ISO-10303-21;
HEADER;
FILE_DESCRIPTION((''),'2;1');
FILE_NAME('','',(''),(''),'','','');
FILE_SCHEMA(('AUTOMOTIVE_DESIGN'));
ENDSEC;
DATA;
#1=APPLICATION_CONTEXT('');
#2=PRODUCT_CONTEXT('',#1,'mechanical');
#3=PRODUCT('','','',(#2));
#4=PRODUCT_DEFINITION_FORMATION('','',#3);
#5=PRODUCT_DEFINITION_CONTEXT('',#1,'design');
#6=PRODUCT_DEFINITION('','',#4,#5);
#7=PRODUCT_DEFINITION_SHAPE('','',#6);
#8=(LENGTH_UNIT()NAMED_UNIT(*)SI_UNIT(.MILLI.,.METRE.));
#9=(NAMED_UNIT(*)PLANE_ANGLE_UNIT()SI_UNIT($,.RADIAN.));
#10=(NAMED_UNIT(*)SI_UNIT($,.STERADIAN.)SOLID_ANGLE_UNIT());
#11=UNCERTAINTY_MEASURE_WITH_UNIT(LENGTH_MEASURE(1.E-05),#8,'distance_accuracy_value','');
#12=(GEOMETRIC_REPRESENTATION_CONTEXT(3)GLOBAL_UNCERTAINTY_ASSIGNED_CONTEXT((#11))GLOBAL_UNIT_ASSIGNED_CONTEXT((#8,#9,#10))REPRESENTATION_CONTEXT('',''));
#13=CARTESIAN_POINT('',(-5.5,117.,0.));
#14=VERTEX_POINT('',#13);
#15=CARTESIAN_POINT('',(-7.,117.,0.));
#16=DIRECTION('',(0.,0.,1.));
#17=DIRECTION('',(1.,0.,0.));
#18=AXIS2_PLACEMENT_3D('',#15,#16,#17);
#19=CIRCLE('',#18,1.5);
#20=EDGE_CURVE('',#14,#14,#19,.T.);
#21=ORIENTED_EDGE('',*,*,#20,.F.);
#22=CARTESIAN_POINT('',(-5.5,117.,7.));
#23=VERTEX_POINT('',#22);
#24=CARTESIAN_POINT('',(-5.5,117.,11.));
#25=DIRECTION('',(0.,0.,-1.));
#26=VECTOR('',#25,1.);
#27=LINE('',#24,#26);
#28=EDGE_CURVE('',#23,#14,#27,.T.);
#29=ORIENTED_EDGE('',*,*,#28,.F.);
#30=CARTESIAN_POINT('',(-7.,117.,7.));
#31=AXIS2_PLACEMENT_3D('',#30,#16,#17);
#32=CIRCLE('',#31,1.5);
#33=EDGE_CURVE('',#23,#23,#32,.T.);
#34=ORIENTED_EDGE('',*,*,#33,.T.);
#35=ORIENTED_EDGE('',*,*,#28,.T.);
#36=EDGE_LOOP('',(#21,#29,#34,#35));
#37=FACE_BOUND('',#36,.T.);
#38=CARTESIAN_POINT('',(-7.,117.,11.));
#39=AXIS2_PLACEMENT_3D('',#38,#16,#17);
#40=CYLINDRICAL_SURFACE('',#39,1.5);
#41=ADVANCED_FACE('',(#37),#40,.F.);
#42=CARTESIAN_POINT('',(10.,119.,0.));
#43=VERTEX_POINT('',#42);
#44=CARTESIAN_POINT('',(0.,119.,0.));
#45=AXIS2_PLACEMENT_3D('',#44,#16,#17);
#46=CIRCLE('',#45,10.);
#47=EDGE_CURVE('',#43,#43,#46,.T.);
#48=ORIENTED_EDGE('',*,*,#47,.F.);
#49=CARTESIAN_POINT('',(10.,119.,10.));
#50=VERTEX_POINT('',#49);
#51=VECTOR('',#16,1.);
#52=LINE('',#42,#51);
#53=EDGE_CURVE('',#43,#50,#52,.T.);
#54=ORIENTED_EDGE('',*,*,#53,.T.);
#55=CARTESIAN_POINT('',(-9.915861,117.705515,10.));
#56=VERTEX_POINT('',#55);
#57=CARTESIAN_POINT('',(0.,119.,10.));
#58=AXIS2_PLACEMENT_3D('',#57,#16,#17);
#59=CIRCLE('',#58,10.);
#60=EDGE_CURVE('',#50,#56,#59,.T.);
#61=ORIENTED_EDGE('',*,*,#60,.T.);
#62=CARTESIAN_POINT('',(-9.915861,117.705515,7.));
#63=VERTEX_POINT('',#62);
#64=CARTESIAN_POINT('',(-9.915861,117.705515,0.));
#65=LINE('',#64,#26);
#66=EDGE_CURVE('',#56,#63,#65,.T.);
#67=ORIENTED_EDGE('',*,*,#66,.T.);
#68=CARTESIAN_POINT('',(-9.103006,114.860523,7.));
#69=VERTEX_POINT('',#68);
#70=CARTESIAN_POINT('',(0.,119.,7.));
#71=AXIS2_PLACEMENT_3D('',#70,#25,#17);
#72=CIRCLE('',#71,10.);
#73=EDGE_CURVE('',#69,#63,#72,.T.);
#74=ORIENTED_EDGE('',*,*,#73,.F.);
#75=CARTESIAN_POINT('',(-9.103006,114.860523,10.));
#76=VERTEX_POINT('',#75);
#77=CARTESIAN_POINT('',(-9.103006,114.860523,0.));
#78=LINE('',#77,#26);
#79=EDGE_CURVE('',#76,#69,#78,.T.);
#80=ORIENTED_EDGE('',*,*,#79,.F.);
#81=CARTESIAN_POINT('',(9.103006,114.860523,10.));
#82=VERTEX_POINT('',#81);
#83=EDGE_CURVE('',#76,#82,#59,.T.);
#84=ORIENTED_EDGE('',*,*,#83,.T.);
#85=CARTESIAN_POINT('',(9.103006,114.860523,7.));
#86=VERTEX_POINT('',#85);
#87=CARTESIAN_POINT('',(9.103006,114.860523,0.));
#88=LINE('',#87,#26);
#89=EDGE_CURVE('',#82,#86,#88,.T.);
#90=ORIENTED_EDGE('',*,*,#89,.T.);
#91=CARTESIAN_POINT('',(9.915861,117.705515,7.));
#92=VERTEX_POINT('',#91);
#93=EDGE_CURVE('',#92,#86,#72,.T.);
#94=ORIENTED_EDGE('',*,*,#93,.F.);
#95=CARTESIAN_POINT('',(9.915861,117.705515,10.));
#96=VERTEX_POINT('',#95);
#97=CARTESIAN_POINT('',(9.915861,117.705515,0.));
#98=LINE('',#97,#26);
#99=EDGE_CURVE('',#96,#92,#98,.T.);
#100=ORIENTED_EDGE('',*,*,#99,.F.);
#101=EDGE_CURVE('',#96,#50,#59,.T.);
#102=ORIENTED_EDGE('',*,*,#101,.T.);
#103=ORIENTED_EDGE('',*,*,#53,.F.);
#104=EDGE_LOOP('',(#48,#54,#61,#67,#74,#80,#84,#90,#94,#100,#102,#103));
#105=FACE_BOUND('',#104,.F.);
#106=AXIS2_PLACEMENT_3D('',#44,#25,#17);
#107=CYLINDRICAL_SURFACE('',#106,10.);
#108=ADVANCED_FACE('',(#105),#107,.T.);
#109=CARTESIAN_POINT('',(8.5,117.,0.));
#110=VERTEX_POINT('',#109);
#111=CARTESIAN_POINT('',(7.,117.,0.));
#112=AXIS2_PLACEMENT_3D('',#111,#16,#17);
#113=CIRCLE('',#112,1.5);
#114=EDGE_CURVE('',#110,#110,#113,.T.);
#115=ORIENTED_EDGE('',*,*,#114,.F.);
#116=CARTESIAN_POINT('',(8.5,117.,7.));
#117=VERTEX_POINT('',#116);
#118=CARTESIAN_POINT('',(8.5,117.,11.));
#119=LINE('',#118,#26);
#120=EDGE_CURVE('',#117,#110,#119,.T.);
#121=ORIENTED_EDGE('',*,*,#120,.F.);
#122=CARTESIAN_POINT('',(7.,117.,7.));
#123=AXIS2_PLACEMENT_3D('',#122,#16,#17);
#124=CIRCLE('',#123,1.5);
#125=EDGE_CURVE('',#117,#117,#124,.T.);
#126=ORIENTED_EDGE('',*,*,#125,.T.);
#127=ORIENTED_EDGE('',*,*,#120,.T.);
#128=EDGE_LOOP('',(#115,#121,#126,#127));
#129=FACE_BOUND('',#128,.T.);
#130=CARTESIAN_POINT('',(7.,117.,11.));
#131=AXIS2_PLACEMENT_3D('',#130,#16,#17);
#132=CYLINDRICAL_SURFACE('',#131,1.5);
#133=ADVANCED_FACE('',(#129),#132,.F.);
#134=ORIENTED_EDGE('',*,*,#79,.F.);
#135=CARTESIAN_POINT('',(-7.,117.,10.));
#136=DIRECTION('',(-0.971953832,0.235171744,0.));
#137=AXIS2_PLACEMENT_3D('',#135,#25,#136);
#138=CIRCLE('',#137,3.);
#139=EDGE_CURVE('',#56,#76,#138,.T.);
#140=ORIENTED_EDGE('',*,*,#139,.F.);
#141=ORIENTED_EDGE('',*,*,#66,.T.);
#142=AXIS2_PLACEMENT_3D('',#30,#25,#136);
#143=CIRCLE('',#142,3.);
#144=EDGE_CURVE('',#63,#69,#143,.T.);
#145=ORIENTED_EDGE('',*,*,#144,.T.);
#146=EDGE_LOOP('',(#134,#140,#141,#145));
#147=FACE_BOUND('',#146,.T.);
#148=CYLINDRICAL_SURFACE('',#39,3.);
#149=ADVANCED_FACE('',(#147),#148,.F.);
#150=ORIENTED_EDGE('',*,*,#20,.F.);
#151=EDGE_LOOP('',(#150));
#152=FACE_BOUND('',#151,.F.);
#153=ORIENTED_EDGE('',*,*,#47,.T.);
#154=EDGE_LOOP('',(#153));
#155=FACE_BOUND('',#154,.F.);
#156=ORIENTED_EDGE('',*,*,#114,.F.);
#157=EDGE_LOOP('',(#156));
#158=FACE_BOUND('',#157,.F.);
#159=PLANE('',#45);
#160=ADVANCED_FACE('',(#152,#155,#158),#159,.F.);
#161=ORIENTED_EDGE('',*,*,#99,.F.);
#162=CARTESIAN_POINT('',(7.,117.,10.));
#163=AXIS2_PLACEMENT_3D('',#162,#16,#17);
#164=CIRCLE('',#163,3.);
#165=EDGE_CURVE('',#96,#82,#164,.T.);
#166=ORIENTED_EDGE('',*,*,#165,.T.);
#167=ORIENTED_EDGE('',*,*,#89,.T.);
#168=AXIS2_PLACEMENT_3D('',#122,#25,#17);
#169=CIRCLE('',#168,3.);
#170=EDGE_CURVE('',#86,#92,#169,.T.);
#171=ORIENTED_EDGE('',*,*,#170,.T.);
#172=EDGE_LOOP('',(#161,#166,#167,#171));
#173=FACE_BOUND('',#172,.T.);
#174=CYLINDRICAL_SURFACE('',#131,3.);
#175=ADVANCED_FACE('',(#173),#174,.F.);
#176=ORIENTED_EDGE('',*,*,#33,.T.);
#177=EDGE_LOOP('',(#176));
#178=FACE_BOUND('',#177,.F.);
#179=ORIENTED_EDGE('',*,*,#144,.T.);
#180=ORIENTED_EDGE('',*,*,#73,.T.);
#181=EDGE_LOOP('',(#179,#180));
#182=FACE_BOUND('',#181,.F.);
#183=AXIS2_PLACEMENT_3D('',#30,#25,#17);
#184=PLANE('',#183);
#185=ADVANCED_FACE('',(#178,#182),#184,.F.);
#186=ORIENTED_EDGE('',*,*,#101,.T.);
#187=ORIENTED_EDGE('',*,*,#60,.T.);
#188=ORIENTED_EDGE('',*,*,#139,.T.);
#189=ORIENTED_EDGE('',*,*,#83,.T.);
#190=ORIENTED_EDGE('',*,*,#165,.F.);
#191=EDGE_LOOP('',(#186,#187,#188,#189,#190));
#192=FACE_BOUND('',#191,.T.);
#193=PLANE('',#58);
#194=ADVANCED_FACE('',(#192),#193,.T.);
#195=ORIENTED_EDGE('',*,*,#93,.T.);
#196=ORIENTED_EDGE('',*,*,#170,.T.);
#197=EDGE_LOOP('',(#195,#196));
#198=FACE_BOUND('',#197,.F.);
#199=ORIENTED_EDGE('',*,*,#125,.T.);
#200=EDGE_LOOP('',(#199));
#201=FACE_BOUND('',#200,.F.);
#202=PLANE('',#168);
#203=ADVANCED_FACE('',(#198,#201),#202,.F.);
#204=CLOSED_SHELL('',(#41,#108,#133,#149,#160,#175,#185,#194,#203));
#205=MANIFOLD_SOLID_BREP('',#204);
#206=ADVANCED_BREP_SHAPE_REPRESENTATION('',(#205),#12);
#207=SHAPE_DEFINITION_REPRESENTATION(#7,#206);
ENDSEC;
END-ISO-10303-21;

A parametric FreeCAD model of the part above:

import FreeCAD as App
import Part
import Sketcher

V = App.Vector
Q = App.Units.Quantity

doc = App.newDocument("Part")
body = doc.addObject("PartDesign::Body", "Body")

sketch1 = body.newObject("Sketcher::SketchObject", "Sketch")
sketch1.AttachmentSupport = (doc.getObject("XZ_Plane"), [""])
sketch1.MapMode = "FlatFace"
sketch1.AttachmentOffset = App.Placement(V(0, 0, 34), App.Rotation())
sketch1.addGeometry(Part.Circle(V(-7, 37, 0), V(0, 0, 1), 3), False)
sketch1.addConstraint([
    Sketcher.Constraint("Diameter", 0, Q("6 mm")),
    Sketcher.Constraint("DistanceX", 0, 3, -1, 1, Q("7 mm")),
    Sketcher.Constraint("DistanceY", -1, 1, 0, 3, Q("37 mm")),
])
pad1 = body.newObject("PartDesign::Pad", "Pad")
pad1.Profile = sketch1
pad1.Length = 4
body2 = doc.addObject("PartDesign::Body", "Body001")

sketch2 = body2.newObject("Sketcher::SketchObject", "Sketch001")
sketch2.AttachmentSupport = (doc.getObject("XZ_Plane001"), [""])
sketch2.MapMode = "FlatFace"
sketch2.AttachmentOffset = App.Placement(V(0, 0, 34), App.Rotation())
sketch2.addGeometry(Part.Circle(V(7, 73, 0), V(0, 0, 1), 3), False)
sketch2.addConstraint([
    Sketcher.Constraint("Diameter", 0, Q("6 mm")),
    Sketcher.Constraint("DistanceX", -1, 1, 0, 3, Q("7 mm")),
    Sketcher.Constraint("DistanceY", -1, 1, 0, 3, Q("73 mm")),
])
pad2 = body2.newObject("PartDesign::Pad", "Pad001")
pad2.Profile = sketch2
pad2.Length = 4
body3 = doc.addObject("PartDesign::Body", "Body002")

sketch3 = body3.newObject("Sketcher::SketchObject", "Sketch002")
sketch3.AttachmentSupport = (doc.getObject("XZ_Plane002"), [""])
sketch3.MapMode = "FlatFace"
sketch3.AttachmentOffset = App.Placement(V(0, 0, 34), App.Rotation())
sketch3.addGeometry(Part.Circle(V(-7, 73, 0), V(0, 0, 1), 3), False)
sketch3.addConstraint([
    Sketcher.Constraint("Diameter", 0, Q("6 mm")),
    Sketcher.Constraint("DistanceX", 0, 3, -1, 1, Q("7 mm")),
    Sketcher.Constraint("DistanceY", -1, 1, 0, 3, Q("73 mm")),
])
pad3 = body3.newObject("PartDesign::Pad", "Pad002")
pad3.Profile = sketch3
pad3.Length = 4
body4 = doc.addObject("PartDesign::Body", "Body003")
body4.AllowCompound = True

sketch4 = body4.newObject("Sketcher::SketchObject", "Sketch003")
sketch4.AttachmentSupport = (doc.getObject("XZ_Plane003"), [""])
sketch4.MapMode = "FlatFace"
sketch4.AttachmentOffset = App.Placement(V(0, 0, 34), App.Rotation())
sketch4.addGeometry(Part.Circle(V(7, 37, 0), V(0, 0, 1), 3), False)
sketch4.addConstraint([
    Sketcher.Constraint("Diameter", 0, Q("6 mm")),
    Sketcher.Constraint("DistanceX", -1, 1, 0, 3, Q("7 mm")),
    Sketcher.Constraint("DistanceY", -1, 1, 0, 3, Q("37 mm")),
])
pad4 = body4.newObject("PartDesign::Pad", "Pad003")
pad4.Profile = sketch4
pad4.Length = 4
doc.recompute()

boolean = body4.newObject("PartDesign::Boolean", "Boolean")
boolean.Type = "Fuse"
boolean.addObjects([body])
doc.recompute()

boolean2 = body4.newObject("PartDesign::Boolean", "Boolean001")
boolean2.Type = "Fuse"
boolean2.addObjects([body2])
doc.recompute()

boolean3 = body4.newObject("PartDesign::Boolean", "Boolean002")
boolean3.Type = "Fuse"
boolean3.addObjects([body3])
body5 = doc.addObject("PartDesign::Body", "Body004")
body5.AllowCompound = True
doc.recompute()

body4.Placement = App.Placement(V(0, 141, 45), App.Rotation(V(1, 0, 0), 90))
boolean4 = body5.newObject("PartDesign::Boolean", "Boolean003")
boolean4.Type = "Fuse"
boolean4.addObjects([body4])
body6 = doc.addObject("PartDesign::Body", "Body005")

sketch5 = body6.newObject("Sketcher::SketchObject", "Sketch004")
sketch5.AttachmentSupport = (doc.getObject("XZ_Plane005"), [""])
sketch5.MapMode = "FlatFace"
sketch5.AttachmentOffset = App.Placement(V(0, 0, 34), App.Rotation())
sketch5.addGeometry(Part.Circle(V(-7, 37, 0), V(0, 0, 1), 1.5), False)
sketch5.addConstraint([
    Sketcher.Constraint("Diameter", 0, Q("3 mm")),
    Sketcher.Constraint("DistanceX", 0, 3, -1, 1, Q("7 mm")),
    Sketcher.Constraint("DistanceY", -1, 1, 0, 3, Q("37 mm")),
])
pad5 = body6.newObject("PartDesign::Pad", "Pad004")
pad5.Profile = sketch5
pad5.Length = 20
body7 = doc.addObject("PartDesign::Body", "Body006")

sketch6 = body7.newObject("Sketcher::SketchObject", "Sketch005")
sketch6.AttachmentSupport = (doc.getObject("XZ_Plane006"), [""])
sketch6.MapMode = "FlatFace"
sketch6.AttachmentOffset = App.Placement(V(0, 0, 34), App.Rotation())
sketch6.addGeometry(Part.Circle(V(7, 73, 0), V(0, 0, 1), 1.5), False)
sketch6.addConstraint([
    Sketcher.Constraint("Diameter", 0, Q("3 mm")),
    Sketcher.Constraint("DistanceX", -1, 1, 0, 3, Q("7 mm")),
    Sketcher.Constraint("DistanceY", -1, 1, 0, 3, Q("73 mm")),
])
pad6 = body7.newObject("PartDesign::Pad", "Pad005")
pad6.Profile = sketch6
pad6.Length = 20
body8 = doc.addObject("PartDesign::Body", "Body007")

sketch7 = body8.newObject("Sketcher::SketchObject", "Sketch006")
sketch7.AttachmentSupport = (doc.getObject("XZ_Plane007"), [""])
sketch7.MapMode = "FlatFace"
sketch7.AttachmentOffset = App.Placement(V(0, 0, 34), App.Rotation())
sketch7.addGeometry(Part.Circle(V(-7, 73, 0), V(0, 0, 1), 1.5), False)
sketch7.addConstraint([
    Sketcher.Constraint("Diameter", 0, Q("3 mm")),
    Sketcher.Constraint("DistanceX", 0, 3, -1, 1, Q("7 mm")),
    Sketcher.Constraint("DistanceY", -1, 1, 0, 3, Q("73 mm")),
])
pad7 = body8.newObject("PartDesign::Pad", "Pad006")
pad7.Profile = sketch7
pad7.Length = 20
body9 = doc.addObject("PartDesign::Body", "Body008")
body9.AllowCompound = True

sketch8 = body9.newObject("Sketcher::SketchObject", "Sketch007")
sketch8.AttachmentSupport = (doc.getObject("XZ_Plane008"), [""])
sketch8.MapMode = "FlatFace"
sketch8.AttachmentOffset = App.Placement(V(0, 0, 34), App.Rotation())
sketch8.addGeometry(Part.Circle(V(7, 37, 0), V(0, 0, 1), 1.5), False)
sketch8.addConstraint([
    Sketcher.Constraint("Diameter", 0, Q("3 mm")),
    Sketcher.Constraint("DistanceX", -1, 1, 0, 3, Q("7 mm")),
    Sketcher.Constraint("DistanceY", -1, 1, 0, 3, Q("37 mm")),
])
pad8 = body9.newObject("PartDesign::Pad", "Pad007")
pad8.Profile = sketch8
pad8.Length = 20
doc.recompute()

boolean5 = body9.newObject("PartDesign::Boolean", "Boolean004")
boolean5.Type = "Fuse"
boolean5.addObjects([body6])
doc.recompute()

boolean6 = body9.newObject("PartDesign::Boolean", "Boolean005")
boolean6.Type = "Fuse"
boolean6.addObjects([body7])
doc.recompute()

boolean7 = body9.newObject("PartDesign::Boolean", "Boolean006")
boolean7.Type = "Fuse"
boolean7.addObjects([body8])
body10 = doc.addObject("PartDesign::Body", "Body009")
body10.AllowCompound = True
doc.recompute()

body9.Placement = App.Placement(V(0, 141, 45), App.Rotation(V(1, 0, 0), 90))
boolean8 = body10.newObject("PartDesign::Boolean", "Boolean007")
boolean8.Type = "Fuse"
boolean8.addObjects([body9])
body11 = doc.addObject("PartDesign::Body", "Body010")

sketch9 = body11.newObject("Sketcher::SketchObject", "Sketch008")
sketch9.AttachmentSupport = (doc.getObject("XY_Plane010"), [""])
sketch9.MapMode = "FlatFace"
sketch9.addGeometry(Part.Circle(V(0, 106, 0), V(0, 0, 1), 10), False)
sketch9.addConstraint([
    Sketcher.Constraint("PointOnObject", 0, 3, -2),
    Sketcher.Constraint("Diameter", 0, Q("20 mm")),
    Sketcher.Constraint("DistanceY", -1, 1, 0, 3, Q("106 mm")),
])
pad9 = body11.newObject("PartDesign::Pad", "Pad008")
pad9.Profile = sketch9
pad9.Length = 10
doc.recompute()

boolean9 = body11.newObject("PartDesign::Boolean", "Boolean008")
boolean9.Type = "Cut"
boolean9.addObjects([body10])
doc.recompute()

boolean10 = body11.newObject("PartDesign::Boolean", "Boolean009")
boolean10.Type = "Cut"
boolean10.addObjects([body5])
body12 = doc.addObject("PartDesign::Body", "Body011")
doc.recompute()

body11.Placement = App.Placement(V(0, 13, 0), App.Rotation(V(0, 0, 1), 0))
boolean11 = body12.newObject("PartDesign::Boolean", "Boolean010")
boolean11.Type = "Fuse"
boolean11.addObjects([body11])

doc.recompute()
